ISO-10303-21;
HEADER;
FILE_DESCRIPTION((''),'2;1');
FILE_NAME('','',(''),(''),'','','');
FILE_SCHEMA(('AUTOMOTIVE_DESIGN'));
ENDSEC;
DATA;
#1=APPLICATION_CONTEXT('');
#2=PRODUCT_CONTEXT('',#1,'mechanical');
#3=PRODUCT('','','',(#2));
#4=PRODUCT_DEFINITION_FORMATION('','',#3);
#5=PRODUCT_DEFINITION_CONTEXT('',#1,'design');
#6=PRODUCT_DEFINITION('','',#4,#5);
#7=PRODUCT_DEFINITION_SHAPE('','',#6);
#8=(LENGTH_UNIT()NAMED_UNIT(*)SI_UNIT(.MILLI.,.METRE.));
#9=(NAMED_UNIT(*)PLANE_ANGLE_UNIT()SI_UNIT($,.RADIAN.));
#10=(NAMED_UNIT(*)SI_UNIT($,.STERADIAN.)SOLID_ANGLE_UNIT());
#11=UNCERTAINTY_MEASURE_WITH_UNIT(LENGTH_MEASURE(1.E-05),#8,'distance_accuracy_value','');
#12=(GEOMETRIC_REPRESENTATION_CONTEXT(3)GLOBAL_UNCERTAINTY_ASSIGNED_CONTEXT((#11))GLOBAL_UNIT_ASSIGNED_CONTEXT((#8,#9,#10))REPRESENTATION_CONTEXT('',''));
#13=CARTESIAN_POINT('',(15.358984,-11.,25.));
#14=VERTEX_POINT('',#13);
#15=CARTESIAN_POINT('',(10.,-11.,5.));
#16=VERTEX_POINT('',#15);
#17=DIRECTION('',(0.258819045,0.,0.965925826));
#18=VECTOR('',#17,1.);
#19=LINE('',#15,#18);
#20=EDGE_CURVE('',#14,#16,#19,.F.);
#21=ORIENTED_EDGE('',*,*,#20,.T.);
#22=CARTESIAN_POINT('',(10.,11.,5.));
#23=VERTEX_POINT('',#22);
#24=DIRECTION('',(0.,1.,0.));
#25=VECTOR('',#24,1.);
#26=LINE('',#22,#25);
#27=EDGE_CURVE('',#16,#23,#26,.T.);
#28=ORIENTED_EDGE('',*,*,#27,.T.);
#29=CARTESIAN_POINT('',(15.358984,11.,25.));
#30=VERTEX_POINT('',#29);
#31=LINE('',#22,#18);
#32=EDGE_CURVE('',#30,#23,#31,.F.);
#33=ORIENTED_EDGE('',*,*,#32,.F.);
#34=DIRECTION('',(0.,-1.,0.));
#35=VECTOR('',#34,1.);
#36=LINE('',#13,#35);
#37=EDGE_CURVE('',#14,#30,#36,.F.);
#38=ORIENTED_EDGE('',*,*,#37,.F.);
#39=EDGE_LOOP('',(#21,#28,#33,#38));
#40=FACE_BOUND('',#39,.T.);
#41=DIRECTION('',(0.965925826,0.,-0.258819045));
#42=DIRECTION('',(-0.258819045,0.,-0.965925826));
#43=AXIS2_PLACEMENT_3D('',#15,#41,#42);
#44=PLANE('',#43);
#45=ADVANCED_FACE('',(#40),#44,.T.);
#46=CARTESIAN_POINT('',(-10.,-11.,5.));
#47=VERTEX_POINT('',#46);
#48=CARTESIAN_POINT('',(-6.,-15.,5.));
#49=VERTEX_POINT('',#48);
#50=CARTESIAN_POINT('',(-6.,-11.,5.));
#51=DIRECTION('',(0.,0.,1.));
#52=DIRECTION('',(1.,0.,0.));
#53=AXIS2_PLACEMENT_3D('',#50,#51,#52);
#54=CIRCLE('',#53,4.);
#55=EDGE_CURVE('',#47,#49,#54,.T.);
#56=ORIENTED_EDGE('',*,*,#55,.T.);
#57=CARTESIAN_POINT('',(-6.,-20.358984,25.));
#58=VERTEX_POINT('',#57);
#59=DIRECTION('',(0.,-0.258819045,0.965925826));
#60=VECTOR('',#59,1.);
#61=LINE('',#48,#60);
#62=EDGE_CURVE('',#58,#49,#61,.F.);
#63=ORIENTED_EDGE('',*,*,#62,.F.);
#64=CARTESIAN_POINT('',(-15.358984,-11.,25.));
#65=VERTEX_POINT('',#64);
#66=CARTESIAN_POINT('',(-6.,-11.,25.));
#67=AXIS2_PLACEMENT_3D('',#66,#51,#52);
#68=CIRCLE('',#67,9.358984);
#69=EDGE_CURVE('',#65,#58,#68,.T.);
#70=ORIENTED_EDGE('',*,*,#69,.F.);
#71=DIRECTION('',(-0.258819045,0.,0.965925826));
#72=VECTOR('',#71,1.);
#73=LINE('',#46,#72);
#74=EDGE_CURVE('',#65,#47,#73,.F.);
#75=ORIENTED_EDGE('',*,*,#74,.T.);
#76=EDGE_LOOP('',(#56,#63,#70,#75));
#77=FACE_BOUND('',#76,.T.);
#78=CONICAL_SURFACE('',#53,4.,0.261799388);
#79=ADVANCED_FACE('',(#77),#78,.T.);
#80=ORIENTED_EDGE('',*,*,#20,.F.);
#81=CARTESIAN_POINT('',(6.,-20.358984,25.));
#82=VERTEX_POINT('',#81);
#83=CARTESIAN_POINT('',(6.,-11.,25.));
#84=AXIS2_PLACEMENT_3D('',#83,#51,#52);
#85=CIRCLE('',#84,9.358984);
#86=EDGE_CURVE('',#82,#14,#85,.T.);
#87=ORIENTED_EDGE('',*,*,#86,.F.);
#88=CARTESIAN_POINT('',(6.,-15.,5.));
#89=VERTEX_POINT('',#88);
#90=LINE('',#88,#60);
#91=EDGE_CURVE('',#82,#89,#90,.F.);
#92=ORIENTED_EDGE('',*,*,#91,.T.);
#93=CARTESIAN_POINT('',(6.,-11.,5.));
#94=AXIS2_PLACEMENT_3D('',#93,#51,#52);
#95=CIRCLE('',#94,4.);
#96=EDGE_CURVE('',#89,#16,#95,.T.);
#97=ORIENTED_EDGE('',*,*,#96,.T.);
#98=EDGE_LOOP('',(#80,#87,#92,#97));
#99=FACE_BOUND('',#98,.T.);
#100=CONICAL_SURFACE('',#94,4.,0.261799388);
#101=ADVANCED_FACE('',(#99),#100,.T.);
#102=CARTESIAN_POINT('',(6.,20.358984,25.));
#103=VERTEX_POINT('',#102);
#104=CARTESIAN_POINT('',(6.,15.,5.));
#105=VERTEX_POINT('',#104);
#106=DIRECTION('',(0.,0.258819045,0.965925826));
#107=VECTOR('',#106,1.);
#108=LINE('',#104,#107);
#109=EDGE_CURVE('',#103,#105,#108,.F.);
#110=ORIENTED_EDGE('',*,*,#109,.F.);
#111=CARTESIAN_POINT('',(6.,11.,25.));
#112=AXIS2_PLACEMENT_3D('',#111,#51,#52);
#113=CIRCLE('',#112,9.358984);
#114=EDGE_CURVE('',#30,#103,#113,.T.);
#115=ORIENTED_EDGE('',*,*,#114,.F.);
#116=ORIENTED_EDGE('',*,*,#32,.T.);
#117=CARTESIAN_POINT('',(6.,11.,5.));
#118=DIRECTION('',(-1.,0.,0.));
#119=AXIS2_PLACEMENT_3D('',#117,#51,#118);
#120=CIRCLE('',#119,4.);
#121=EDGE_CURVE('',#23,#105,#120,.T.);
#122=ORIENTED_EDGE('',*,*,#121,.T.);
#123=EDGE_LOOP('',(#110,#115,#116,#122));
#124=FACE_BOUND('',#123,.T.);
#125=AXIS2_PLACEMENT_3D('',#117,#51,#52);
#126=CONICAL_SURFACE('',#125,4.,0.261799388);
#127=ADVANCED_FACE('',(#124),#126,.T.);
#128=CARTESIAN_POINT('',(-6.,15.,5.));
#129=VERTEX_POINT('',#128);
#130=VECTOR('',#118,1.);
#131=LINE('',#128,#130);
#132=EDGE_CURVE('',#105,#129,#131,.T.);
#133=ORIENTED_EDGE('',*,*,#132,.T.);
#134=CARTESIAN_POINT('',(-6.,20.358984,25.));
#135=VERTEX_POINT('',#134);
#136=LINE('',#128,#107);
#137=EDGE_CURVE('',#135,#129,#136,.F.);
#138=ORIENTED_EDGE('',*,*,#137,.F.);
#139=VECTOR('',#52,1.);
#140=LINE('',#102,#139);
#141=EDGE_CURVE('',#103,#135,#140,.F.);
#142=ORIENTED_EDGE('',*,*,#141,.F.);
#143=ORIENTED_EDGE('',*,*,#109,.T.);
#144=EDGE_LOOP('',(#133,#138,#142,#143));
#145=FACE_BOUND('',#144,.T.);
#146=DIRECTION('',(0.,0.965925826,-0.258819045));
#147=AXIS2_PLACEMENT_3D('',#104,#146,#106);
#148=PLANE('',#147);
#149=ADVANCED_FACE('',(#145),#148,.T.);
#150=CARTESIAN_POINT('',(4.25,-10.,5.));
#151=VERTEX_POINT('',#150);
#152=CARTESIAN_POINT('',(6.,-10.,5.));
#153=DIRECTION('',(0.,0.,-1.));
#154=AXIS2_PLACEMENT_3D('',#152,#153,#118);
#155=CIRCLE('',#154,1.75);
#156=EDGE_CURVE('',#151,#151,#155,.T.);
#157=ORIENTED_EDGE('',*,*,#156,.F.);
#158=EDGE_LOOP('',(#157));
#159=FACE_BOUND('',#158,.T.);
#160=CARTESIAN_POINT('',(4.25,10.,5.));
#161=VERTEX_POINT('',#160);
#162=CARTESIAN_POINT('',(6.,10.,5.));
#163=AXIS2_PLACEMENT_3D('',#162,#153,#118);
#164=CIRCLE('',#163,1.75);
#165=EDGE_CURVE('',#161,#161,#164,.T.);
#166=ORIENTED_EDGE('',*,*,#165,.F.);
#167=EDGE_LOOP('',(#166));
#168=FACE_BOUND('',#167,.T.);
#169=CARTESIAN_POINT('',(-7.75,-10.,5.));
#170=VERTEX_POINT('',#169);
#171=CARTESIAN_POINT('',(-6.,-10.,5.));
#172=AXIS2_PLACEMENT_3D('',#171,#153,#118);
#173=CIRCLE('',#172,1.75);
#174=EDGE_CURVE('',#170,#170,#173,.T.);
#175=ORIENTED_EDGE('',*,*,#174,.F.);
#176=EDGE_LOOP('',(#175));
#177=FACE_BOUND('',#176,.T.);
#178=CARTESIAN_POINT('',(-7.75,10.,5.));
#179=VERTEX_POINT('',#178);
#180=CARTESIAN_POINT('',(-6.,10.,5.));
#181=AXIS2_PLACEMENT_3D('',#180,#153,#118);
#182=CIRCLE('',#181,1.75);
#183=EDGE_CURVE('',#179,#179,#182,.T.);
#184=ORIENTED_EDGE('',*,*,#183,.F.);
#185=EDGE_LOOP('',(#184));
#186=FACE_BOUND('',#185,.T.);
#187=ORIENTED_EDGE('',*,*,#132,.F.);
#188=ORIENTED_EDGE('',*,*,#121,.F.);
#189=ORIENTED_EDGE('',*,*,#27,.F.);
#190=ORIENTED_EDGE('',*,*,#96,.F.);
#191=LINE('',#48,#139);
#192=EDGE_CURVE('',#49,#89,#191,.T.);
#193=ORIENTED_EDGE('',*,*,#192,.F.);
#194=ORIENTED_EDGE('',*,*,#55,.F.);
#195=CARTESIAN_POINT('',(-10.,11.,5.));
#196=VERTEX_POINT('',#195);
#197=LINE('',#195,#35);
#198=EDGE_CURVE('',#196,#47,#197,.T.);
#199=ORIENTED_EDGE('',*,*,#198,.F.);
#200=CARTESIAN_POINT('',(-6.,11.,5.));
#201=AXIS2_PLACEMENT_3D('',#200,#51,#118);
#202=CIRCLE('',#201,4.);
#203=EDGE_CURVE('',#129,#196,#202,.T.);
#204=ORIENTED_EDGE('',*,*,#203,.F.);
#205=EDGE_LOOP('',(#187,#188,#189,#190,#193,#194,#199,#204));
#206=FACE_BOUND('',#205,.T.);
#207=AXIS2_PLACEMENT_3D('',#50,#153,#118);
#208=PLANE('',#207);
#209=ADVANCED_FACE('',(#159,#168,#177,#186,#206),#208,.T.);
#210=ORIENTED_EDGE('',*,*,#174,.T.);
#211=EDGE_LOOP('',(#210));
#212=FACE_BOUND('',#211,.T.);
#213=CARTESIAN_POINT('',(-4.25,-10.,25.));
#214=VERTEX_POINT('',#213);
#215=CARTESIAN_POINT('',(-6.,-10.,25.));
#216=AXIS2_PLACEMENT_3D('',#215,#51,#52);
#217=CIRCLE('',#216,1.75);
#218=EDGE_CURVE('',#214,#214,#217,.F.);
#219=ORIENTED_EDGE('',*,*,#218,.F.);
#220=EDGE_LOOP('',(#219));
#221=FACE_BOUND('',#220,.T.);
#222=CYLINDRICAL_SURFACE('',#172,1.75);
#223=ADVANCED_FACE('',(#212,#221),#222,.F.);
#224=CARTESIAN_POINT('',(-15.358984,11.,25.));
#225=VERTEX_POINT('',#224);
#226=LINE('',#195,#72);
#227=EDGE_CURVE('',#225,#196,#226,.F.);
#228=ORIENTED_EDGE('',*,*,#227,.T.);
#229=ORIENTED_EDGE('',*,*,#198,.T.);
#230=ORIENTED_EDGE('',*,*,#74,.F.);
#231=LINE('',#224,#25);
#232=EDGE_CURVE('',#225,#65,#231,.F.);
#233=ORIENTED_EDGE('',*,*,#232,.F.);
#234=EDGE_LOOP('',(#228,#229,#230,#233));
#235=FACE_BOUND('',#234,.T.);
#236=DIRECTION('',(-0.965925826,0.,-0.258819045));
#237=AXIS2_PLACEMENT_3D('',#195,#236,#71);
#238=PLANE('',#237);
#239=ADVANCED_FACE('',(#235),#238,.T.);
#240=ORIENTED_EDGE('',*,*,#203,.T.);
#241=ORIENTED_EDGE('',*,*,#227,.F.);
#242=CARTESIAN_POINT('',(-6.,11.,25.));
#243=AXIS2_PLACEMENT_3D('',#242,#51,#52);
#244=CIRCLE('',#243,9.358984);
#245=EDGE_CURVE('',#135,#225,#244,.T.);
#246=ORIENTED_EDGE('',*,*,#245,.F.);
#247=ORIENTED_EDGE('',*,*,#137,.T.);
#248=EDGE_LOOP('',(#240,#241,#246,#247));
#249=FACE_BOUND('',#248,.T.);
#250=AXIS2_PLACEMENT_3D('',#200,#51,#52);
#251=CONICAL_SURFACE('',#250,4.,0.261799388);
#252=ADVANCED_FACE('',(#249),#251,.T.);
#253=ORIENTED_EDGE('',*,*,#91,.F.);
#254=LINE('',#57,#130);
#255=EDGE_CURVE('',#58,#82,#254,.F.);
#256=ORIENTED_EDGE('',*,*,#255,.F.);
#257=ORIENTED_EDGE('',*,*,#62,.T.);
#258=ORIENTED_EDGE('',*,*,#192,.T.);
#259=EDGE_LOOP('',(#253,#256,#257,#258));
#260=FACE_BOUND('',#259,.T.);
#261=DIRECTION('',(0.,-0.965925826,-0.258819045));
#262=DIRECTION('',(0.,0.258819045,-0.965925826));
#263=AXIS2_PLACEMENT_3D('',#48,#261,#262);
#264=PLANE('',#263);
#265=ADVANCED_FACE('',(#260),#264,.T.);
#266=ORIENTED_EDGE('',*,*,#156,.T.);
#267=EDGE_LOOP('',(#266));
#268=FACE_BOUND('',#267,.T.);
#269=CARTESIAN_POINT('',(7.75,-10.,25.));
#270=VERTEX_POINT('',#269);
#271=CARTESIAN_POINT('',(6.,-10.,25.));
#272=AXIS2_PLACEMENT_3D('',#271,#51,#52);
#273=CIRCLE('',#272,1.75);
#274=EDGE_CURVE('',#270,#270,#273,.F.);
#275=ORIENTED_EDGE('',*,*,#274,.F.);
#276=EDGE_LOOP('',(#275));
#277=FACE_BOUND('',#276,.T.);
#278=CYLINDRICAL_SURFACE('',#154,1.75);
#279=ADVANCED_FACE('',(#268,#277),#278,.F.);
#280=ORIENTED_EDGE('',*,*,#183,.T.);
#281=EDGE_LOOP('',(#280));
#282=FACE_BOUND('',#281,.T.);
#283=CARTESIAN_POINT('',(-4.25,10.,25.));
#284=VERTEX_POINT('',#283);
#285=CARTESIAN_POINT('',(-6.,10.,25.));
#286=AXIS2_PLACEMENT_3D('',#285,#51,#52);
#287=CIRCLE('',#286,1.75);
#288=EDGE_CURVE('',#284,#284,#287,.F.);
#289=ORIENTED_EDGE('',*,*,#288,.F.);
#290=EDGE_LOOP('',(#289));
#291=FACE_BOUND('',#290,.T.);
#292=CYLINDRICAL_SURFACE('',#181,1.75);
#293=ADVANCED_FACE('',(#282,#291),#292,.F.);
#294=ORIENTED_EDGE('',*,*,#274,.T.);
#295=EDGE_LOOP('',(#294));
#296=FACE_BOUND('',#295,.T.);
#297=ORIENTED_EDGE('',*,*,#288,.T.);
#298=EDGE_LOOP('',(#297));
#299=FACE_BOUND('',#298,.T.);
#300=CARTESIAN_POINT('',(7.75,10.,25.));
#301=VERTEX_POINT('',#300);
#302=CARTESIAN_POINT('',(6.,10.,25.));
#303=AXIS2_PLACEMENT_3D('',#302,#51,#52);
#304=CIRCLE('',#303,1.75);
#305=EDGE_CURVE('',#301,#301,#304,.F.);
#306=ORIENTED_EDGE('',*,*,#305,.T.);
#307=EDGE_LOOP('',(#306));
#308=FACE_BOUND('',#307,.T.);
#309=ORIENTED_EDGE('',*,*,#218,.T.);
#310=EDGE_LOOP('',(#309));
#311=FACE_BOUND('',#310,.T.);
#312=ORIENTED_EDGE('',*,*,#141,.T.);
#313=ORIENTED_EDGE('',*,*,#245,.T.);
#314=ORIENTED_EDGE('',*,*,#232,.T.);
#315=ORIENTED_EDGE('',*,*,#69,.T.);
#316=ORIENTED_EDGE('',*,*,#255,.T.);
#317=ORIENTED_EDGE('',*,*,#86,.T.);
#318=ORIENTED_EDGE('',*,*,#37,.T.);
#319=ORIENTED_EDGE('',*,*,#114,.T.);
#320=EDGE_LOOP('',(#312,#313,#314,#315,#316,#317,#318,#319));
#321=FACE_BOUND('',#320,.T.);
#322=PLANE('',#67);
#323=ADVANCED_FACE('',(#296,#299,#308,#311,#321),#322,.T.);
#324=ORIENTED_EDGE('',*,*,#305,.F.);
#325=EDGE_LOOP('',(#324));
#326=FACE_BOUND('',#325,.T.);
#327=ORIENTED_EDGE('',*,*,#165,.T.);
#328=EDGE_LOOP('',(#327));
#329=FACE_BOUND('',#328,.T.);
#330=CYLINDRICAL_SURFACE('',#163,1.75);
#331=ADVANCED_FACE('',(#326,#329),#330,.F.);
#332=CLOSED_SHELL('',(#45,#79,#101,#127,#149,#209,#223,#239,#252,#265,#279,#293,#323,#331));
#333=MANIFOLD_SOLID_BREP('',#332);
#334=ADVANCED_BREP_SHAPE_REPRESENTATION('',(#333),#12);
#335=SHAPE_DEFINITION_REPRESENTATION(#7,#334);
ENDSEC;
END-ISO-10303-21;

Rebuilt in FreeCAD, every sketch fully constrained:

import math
import FreeCAD as App
import Part
import Sketcher
from FreeCAD import Vector


def faces_at(feature, points):
    """Names of the faces that lie closest to the given points."""
    faces = feature.Shape.Faces
    near = lambda p: min(range(len(faces)), key=lambda i: faces[i].distToShape(Part.Vertex(*p))[0])
    return sorted({f"Face{near(p) + 1}" for p in points})

doc = App.newDocument("Part")
body = doc.addObject("PartDesign::Body", "Body")

# Sketch on XY plane
sketch1 = body.newObject("Sketcher::SketchObject", "Sketch")
sketch1.AttachmentSupport = (doc.getObject("XY_Plane"), [""])
sketch1.MapMode = "FlatFace"
sketch1.addGeometry([
    Part.LineSegment(Vector(6, 15, 0), Vector(-6, 15, 0)),  # 0
    Part.ArcOfCircle(Part.Circle(Vector(-6, 11, 0), Vector(0, 0, 1), 4), math.radians(90), math.radians(180)),  # 1
    Part.LineSegment(Vector(-10, 11, 0), Vector(-10, -11, 0)),  # 2
    Part.ArcOfCircle(Part.Circle(Vector(-6, -11, 0), Vector(0, 0, 1), 4), math.radians(180), math.radians(270)),  # 3
    Part.LineSegment(Vector(-6, -15, 0), Vector(6, -15, 0)),  # 4
    Part.ArcOfCircle(Part.Circle(Vector(6, -11, 0), Vector(0, 0, 1), 4), math.radians(-90), math.radians(0)),  # 5
    Part.LineSegment(Vector(10, -11, 0), Vector(10, 11, 0)),  # 6
    Part.ArcOfCircle(Part.Circle(Vector(6, 11, 0), Vector(0, 0, 1), 4), math.radians(0), math.radians(90)),  # 7
    Part.Circle(Vector(6, -10, 0), Vector(0, 0, 1), 1.8),  # 8
    Part.Circle(Vector(-6, -10, 0), Vector(0, 0, 1), 1.8),  # 9
    Part.Circle(Vector(6, 10, 0), Vector(0, 0, 1), 1.8),  # 10
    Part.Circle(Vector(-6, 10, 0), Vector(0, 0, 1), 1.8),  # 11
], False)
sketch1.addConstraint([
    Sketcher.Constraint("Tangent", 0, 2, 1, 1),
    Sketcher.Constraint("Tangent", 1, 2, 2, 1),
    Sketcher.Constraint("Tangent", 2, 2, 3, 1),
    Sketcher.Constraint("Tangent", 3, 2, 4, 1),
    Sketcher.Constraint("Tangent", 4, 2, 5, 1),
    Sketcher.Constraint("Tangent", 5, 2, 6, 1),
    Sketcher.Constraint("Tangent", 6, 2, 7, 1),
    Sketcher.Constraint("Tangent", 7, 2, 0, 1),
    Sketcher.Constraint("Horizontal", 0),
    Sketcher.Constraint("Vertical", 2),
    Sketcher.Constraint("Horizontal", 4),
    Sketcher.Constraint("Vertical", 6),
    Sketcher.Constraint("Equal", 1, 3),
    Sketcher.Constraint("Equal", 3, 5),
    Sketcher.Constraint("Equal", 5, 7),
    Sketcher.Constraint("Equal", 8, 9),
    Sketcher.Constraint("Equal", 9, 10),
    Sketcher.Constraint("Equal", 10, 11),
    Sketcher.Constraint("Symmetric", 1, 3, 5, 3, -1, 1),
    Sketcher.Constraint("Symmetric", 9, 3, 10, 3, -1, 1),
    Sketcher.Constraint("Symmetric", 8, 3, 11, 3, -1, 1),
    Sketcher.Constraint("Symmetric", 8, 3, 9, 3, -2),
    Sketcher.Constraint("Vertical", 7, 3, 8, 3),
    Sketcher.Constraint("Radius", 1, 4.0),
    Sketcher.Constraint("Diameter", 8, 3.5),
    Sketcher.Constraint("DistanceX", 0, 2, 0, 1, 12.0),
    Sketcher.Constraint("DistanceY", 2, 2, 2, 1, 22.0),
    Sketcher.Constraint("DistanceY", 8, 3, -1, 1, 10.0),
])
pad1 = body.newObject("PartDesign::Pad", "Pad")
pad1.Profile = sketch1
pad1.Length = 5
body2 = doc.addObject("PartDesign::Body", "Body001")

# Sketch on XY plane
sketch2 = body2.newObject("Sketcher::SketchObject", "Sketch001")
sketch2.AttachmentSupport = (doc.getObject("XY_Plane001"), [""])
sketch2.MapMode = "FlatFace"
sketch2.AttachmentOffset = App.Placement(Vector(0, 0, 5), App.Rotation())
sketch2.addGeometry([
    Part.LineSegment(Vector(-6, -15, 0), Vector(6, -15, 0)),  # 0
    Part.ArcOfCircle(Part.Circle(Vector(6, -11, 0), Vector(0, 0, 1), 4), math.radians(-90), math.radians(0)),  # 1
    Part.LineSegment(Vector(10, -11, 0), Vector(10, 11, 0)),  # 2
    Part.ArcOfCircle(Part.Circle(Vector(6, 11, 0), Vector(0, 0, 1), 4), math.radians(0), math.radians(90)),  # 3
    Part.LineSegment(Vector(6, 15, 0), Vector(-6, 15, 0)),  # 4
    Part.ArcOfCircle(Part.Circle(Vector(-6, 11, 0), Vector(0, 0, 1), 4), math.radians(90), math.radians(180)),  # 5
    Part.LineSegment(Vector(-10, 11, 0), Vector(-10, -11, 0)),  # 6
    Part.ArcOfCircle(Part.Circle(Vector(-6, -11, 0), Vector(0, 0, 1), 4), math.radians(180), math.radians(270)),  # 7
], False)
sketch2.addConstraint([
    Sketcher.Constraint("Tangent", 0, 2, 1, 1),
    Sketcher.Constraint("Tangent", 1, 2, 2, 1),
    Sketcher.Constraint("Tangent", 2, 2, 3, 1),
    Sketcher.Constraint("Tangent", 3, 2, 4, 1),
    Sketcher.Constraint("Tangent", 4, 2, 5, 1),
    Sketcher.Constraint("Tangent", 5, 2, 6, 1),
    Sketcher.Constraint("Tangent", 6, 2, 7, 1),
    Sketcher.Constraint("Tangent", 7, 2, 0, 1),
    Sketcher.Constraint("Horizontal", 0),
    Sketcher.Constraint("Vertical", 2),
    Sketcher.Constraint("Horizontal", 4),
    Sketcher.Constraint("Vertical", 6),
    Sketcher.Constraint("Equal", 1, 3),
    Sketcher.Constraint("Equal", 3, 5),
    Sketcher.Constraint("Equal", 5, 7),
    Sketcher.Constraint("Symmetric", 1, 3, 5, 3, -1, 1),
    Sketcher.Constraint("Radius", 1, 4.0),
    Sketcher.Constraint("DistanceX", 0, 1, 0, 2, 12.0),
    Sketcher.Constraint("DistanceY", 2, 1, 2, 2, 22.0),
])
pad2 = body2.newObject("PartDesign::Pad", "Pad001")
pad2.Profile = sketch2
pad2.Length = 20
doc.recompute()

datumplane = body2.newObject("PartDesign::Plane", "DatumPlane")
datumplane.AttachmentSupport = (doc.getObject("XY_Plane001"), [""])
datumplane.MapMode = "FlatFace"
datumplane.AttachmentOffset = App.Placement(Vector(0, 0, 5), App.Rotation())
draft = body2.newObject("PartDesign::Draft", "Draft")
draft.Base = (pad2, faces_at(pad2, [
    (-10, 0, 15),
    (-8.828, -13.828, 15),
    (0, -15, 15),
    (8.828, -13.828, 15),
    (10, 0, 15),
    (8.828, 13.828, 15),
    (0, 15, 15),
    (-8.828, 13.828, 15),
]))
draft.NeutralPlane = (datumplane, [""])
draft.Angle = 15
draft.Reversed = True
doc.recompute()

boolean = body.newObject("PartDesign::Boolean", "Boolean")
boolean.Type = "Fuse"
boolean.addObjects([body2])

# Sketch on XY plane
sketch3 = body.newObject("Sketcher::SketchObject", "Sketch002")
sketch3.AttachmentSupport = (doc.getObject("XY_Plane"), [""])
sketch3.MapMode = "FlatFace"
sketch3.addGeometry(Part.Circle(Vector(6, -10, 0), Vector(0, 0, 1), 1.8), False)
sketch3.addConstraint([
    Sketcher.Constraint("Diameter", 0, 3.5),
    Sketcher.Constraint("DistanceX", -1, 1, 0, 3, 6.0),
    Sketcher.Constraint("DistanceY", 0, 3, -1, 1, 10.0),
])
pocket1 = body.newObject("PartDesign::Pocket", "Pocket")
pocket1.Profile = sketch3
pocket1.Length = 25
pocket1.Reversed = True

# Sketch on XY plane
sketch4 = body.newObject("Sketcher::SketchObject", "Sketch003")
sketch4.AttachmentSupport = (doc.getObject("XY_Plane"), [""])
sketch4.MapMode = "FlatFace"
sketch4.addGeometry(Part.Circle(Vector(-6, -10, 0), Vector(0, 0, 1), 1.8), False)
sketch4.addConstraint([
    Sketcher.Constraint("Diameter", 0, 3.5),
    Sketcher.Constraint("DistanceX", 0, 3, -1, 1, 6.0),
    Sketcher.Constraint("DistanceY", 0, 3, -1, 1, 10.0),
])
pocket2 = body.newObject("PartDesign::Pocket", "Pocket001")
pocket2.Profile = sketch4
pocket2.Length = 25
pocket2.Reversed = True

# Sketch on XY plane
sketch5 = body.newObject("Sketcher::SketchObject", "Sketch004")
sketch5.AttachmentSupport = (doc.getObject("XY_Plane"), [""])
sketch5.MapMode = "FlatFace"
sketch5.addGeometry(Part.Circle(Vector(-6, 10, 0), Vector(0, 0, 1), 1.8), False)
sketch5.addConstraint([
    Sketcher.Constraint("Diameter", 0, 3.5),
    Sketcher.Constraint("DistanceX", 0, 3, -1, 1, 6.0),
    Sketcher.Constraint("DistanceY", -1, 1, 0, 3, 10.0),
])
pocket3 = body.newObject("PartDesign::Pocket", "Pocket002")
pocket3.Profile = sketch5
pocket3.Length = 25
pocket3.Reversed = True

# Sketch on XY plane
sketch6 = body.newObject("Sketcher::SketchObject", "Sketch005")
sketch6.AttachmentSupport = (doc.getObject("XY_Plane"), [""])
sketch6.MapMode = "FlatFace"
sketch6.addGeometry(Part.Circle(Vector(6, 10, 0), Vector(0, 0, 1), 1.8), False)
sketch6.addConstraint([
    Sketcher.Constraint("Diameter", 0, 3.5),
    Sketcher.Constraint("DistanceX", -1, 1, 0, 3, 6.0),
    Sketcher.Constraint("DistanceY", -1, 1, 0, 3, 10.0),
])
pocket4 = body.newObject("PartDesign::Pocket", "Pocket003")
pocket4.Profile = sketch6
pocket4.Length = 25
pocket4.Reversed = True

# Sketch on XY plane
sketch7 = body.newObject("Sketcher::SketchObject", "Sketch006")
sketch7.AttachmentSupport = (doc.getObject("XY_Plane"), [""])
sketch7.MapMode = "FlatFace"
sketch7.addGeometry([
    Part.LineSegment(Vector(6, -15, 0), Vector(-6, -15, 0)),  # 0
    Part.ArcOfCircle(Part.Circle(Vector(-6, -11, 0), Vector(0, 0, 1), 4), math.radians(180), math.radians(270)),  # 1
    Part.LineSegment(Vector(-10, -11, 0), Vector(-10, 11, 0)),  # 2
    Part.ArcOfCircle(Part.Circle(Vector(-6, 11, 0), Vector(0, 0, 1), 4), math.radians(90), math.radians(180)),  # 3
    Part.LineSegment(Vector(-6, 15, 0), Vector(6, 15, 0)),  # 4
    Part.ArcOfCircle(Part.Circle(Vector(6, 11, 0), Vector(0, 0, 1), 4), math.radians(0), math.radians(90)),  # 5
    Part.LineSegment(Vector(10, 11, 0), Vector(10, -11, 0)),  # 6
    Part.ArcOfCircle(Part.Circle(Vector(6, -11, 0), Vector(0, 0, 1), 4), math.radians(-90), math.radians(0)),  # 7
], False)
sketch7.addConstraint([
    Sketcher.Constraint("Tangent", 0, 2, 1, 2),
    Sketcher.Constraint("Tangent", 1, 1, 2, 1),
    Sketcher.Constraint("Tangent", 2, 2, 3, 2),
    Sketcher.Constraint("Tangent", 3, 1, 4, 1),
    Sketcher.Constraint("Tangent", 4, 2, 5, 2),
    Sketcher.Constraint("Tangent", 5, 1, 6, 1),
    Sketcher.Constraint("Tangent", 6, 2, 7, 2),
    Sketcher.Constraint("Tangent", 7, 1, 0, 1),
    Sketcher.Constraint("Horizontal", 0),
    Sketcher.Constraint("Vertical", 2),
    Sketcher.Constraint("Horizontal", 4),
    Sketcher.Constraint("Vertical", 6),
    Sketcher.Constraint("Equal", 1, 3),
    Sketcher.Constraint("Equal", 3, 5),
    Sketcher.Constraint("Equal", 5, 7),
    Sketcher.Constraint("Symmetric", 1, 3, 5, 3, -1, 1),
    Sketcher.Constraint("Radius", 1, 4.0),
    Sketcher.Constraint("DistanceX", 0, 2, 0, 1, 12.0),
    Sketcher.Constraint("DistanceY", 2, 1, 2, 2, 22.0),
])
pocket5 = body.newObject("PartDesign::Pocket", "Pocket004")
pocket5.Profile = sketch7
pocket5.Length = 5
pocket5.Reversed = True

doc.recompute()
